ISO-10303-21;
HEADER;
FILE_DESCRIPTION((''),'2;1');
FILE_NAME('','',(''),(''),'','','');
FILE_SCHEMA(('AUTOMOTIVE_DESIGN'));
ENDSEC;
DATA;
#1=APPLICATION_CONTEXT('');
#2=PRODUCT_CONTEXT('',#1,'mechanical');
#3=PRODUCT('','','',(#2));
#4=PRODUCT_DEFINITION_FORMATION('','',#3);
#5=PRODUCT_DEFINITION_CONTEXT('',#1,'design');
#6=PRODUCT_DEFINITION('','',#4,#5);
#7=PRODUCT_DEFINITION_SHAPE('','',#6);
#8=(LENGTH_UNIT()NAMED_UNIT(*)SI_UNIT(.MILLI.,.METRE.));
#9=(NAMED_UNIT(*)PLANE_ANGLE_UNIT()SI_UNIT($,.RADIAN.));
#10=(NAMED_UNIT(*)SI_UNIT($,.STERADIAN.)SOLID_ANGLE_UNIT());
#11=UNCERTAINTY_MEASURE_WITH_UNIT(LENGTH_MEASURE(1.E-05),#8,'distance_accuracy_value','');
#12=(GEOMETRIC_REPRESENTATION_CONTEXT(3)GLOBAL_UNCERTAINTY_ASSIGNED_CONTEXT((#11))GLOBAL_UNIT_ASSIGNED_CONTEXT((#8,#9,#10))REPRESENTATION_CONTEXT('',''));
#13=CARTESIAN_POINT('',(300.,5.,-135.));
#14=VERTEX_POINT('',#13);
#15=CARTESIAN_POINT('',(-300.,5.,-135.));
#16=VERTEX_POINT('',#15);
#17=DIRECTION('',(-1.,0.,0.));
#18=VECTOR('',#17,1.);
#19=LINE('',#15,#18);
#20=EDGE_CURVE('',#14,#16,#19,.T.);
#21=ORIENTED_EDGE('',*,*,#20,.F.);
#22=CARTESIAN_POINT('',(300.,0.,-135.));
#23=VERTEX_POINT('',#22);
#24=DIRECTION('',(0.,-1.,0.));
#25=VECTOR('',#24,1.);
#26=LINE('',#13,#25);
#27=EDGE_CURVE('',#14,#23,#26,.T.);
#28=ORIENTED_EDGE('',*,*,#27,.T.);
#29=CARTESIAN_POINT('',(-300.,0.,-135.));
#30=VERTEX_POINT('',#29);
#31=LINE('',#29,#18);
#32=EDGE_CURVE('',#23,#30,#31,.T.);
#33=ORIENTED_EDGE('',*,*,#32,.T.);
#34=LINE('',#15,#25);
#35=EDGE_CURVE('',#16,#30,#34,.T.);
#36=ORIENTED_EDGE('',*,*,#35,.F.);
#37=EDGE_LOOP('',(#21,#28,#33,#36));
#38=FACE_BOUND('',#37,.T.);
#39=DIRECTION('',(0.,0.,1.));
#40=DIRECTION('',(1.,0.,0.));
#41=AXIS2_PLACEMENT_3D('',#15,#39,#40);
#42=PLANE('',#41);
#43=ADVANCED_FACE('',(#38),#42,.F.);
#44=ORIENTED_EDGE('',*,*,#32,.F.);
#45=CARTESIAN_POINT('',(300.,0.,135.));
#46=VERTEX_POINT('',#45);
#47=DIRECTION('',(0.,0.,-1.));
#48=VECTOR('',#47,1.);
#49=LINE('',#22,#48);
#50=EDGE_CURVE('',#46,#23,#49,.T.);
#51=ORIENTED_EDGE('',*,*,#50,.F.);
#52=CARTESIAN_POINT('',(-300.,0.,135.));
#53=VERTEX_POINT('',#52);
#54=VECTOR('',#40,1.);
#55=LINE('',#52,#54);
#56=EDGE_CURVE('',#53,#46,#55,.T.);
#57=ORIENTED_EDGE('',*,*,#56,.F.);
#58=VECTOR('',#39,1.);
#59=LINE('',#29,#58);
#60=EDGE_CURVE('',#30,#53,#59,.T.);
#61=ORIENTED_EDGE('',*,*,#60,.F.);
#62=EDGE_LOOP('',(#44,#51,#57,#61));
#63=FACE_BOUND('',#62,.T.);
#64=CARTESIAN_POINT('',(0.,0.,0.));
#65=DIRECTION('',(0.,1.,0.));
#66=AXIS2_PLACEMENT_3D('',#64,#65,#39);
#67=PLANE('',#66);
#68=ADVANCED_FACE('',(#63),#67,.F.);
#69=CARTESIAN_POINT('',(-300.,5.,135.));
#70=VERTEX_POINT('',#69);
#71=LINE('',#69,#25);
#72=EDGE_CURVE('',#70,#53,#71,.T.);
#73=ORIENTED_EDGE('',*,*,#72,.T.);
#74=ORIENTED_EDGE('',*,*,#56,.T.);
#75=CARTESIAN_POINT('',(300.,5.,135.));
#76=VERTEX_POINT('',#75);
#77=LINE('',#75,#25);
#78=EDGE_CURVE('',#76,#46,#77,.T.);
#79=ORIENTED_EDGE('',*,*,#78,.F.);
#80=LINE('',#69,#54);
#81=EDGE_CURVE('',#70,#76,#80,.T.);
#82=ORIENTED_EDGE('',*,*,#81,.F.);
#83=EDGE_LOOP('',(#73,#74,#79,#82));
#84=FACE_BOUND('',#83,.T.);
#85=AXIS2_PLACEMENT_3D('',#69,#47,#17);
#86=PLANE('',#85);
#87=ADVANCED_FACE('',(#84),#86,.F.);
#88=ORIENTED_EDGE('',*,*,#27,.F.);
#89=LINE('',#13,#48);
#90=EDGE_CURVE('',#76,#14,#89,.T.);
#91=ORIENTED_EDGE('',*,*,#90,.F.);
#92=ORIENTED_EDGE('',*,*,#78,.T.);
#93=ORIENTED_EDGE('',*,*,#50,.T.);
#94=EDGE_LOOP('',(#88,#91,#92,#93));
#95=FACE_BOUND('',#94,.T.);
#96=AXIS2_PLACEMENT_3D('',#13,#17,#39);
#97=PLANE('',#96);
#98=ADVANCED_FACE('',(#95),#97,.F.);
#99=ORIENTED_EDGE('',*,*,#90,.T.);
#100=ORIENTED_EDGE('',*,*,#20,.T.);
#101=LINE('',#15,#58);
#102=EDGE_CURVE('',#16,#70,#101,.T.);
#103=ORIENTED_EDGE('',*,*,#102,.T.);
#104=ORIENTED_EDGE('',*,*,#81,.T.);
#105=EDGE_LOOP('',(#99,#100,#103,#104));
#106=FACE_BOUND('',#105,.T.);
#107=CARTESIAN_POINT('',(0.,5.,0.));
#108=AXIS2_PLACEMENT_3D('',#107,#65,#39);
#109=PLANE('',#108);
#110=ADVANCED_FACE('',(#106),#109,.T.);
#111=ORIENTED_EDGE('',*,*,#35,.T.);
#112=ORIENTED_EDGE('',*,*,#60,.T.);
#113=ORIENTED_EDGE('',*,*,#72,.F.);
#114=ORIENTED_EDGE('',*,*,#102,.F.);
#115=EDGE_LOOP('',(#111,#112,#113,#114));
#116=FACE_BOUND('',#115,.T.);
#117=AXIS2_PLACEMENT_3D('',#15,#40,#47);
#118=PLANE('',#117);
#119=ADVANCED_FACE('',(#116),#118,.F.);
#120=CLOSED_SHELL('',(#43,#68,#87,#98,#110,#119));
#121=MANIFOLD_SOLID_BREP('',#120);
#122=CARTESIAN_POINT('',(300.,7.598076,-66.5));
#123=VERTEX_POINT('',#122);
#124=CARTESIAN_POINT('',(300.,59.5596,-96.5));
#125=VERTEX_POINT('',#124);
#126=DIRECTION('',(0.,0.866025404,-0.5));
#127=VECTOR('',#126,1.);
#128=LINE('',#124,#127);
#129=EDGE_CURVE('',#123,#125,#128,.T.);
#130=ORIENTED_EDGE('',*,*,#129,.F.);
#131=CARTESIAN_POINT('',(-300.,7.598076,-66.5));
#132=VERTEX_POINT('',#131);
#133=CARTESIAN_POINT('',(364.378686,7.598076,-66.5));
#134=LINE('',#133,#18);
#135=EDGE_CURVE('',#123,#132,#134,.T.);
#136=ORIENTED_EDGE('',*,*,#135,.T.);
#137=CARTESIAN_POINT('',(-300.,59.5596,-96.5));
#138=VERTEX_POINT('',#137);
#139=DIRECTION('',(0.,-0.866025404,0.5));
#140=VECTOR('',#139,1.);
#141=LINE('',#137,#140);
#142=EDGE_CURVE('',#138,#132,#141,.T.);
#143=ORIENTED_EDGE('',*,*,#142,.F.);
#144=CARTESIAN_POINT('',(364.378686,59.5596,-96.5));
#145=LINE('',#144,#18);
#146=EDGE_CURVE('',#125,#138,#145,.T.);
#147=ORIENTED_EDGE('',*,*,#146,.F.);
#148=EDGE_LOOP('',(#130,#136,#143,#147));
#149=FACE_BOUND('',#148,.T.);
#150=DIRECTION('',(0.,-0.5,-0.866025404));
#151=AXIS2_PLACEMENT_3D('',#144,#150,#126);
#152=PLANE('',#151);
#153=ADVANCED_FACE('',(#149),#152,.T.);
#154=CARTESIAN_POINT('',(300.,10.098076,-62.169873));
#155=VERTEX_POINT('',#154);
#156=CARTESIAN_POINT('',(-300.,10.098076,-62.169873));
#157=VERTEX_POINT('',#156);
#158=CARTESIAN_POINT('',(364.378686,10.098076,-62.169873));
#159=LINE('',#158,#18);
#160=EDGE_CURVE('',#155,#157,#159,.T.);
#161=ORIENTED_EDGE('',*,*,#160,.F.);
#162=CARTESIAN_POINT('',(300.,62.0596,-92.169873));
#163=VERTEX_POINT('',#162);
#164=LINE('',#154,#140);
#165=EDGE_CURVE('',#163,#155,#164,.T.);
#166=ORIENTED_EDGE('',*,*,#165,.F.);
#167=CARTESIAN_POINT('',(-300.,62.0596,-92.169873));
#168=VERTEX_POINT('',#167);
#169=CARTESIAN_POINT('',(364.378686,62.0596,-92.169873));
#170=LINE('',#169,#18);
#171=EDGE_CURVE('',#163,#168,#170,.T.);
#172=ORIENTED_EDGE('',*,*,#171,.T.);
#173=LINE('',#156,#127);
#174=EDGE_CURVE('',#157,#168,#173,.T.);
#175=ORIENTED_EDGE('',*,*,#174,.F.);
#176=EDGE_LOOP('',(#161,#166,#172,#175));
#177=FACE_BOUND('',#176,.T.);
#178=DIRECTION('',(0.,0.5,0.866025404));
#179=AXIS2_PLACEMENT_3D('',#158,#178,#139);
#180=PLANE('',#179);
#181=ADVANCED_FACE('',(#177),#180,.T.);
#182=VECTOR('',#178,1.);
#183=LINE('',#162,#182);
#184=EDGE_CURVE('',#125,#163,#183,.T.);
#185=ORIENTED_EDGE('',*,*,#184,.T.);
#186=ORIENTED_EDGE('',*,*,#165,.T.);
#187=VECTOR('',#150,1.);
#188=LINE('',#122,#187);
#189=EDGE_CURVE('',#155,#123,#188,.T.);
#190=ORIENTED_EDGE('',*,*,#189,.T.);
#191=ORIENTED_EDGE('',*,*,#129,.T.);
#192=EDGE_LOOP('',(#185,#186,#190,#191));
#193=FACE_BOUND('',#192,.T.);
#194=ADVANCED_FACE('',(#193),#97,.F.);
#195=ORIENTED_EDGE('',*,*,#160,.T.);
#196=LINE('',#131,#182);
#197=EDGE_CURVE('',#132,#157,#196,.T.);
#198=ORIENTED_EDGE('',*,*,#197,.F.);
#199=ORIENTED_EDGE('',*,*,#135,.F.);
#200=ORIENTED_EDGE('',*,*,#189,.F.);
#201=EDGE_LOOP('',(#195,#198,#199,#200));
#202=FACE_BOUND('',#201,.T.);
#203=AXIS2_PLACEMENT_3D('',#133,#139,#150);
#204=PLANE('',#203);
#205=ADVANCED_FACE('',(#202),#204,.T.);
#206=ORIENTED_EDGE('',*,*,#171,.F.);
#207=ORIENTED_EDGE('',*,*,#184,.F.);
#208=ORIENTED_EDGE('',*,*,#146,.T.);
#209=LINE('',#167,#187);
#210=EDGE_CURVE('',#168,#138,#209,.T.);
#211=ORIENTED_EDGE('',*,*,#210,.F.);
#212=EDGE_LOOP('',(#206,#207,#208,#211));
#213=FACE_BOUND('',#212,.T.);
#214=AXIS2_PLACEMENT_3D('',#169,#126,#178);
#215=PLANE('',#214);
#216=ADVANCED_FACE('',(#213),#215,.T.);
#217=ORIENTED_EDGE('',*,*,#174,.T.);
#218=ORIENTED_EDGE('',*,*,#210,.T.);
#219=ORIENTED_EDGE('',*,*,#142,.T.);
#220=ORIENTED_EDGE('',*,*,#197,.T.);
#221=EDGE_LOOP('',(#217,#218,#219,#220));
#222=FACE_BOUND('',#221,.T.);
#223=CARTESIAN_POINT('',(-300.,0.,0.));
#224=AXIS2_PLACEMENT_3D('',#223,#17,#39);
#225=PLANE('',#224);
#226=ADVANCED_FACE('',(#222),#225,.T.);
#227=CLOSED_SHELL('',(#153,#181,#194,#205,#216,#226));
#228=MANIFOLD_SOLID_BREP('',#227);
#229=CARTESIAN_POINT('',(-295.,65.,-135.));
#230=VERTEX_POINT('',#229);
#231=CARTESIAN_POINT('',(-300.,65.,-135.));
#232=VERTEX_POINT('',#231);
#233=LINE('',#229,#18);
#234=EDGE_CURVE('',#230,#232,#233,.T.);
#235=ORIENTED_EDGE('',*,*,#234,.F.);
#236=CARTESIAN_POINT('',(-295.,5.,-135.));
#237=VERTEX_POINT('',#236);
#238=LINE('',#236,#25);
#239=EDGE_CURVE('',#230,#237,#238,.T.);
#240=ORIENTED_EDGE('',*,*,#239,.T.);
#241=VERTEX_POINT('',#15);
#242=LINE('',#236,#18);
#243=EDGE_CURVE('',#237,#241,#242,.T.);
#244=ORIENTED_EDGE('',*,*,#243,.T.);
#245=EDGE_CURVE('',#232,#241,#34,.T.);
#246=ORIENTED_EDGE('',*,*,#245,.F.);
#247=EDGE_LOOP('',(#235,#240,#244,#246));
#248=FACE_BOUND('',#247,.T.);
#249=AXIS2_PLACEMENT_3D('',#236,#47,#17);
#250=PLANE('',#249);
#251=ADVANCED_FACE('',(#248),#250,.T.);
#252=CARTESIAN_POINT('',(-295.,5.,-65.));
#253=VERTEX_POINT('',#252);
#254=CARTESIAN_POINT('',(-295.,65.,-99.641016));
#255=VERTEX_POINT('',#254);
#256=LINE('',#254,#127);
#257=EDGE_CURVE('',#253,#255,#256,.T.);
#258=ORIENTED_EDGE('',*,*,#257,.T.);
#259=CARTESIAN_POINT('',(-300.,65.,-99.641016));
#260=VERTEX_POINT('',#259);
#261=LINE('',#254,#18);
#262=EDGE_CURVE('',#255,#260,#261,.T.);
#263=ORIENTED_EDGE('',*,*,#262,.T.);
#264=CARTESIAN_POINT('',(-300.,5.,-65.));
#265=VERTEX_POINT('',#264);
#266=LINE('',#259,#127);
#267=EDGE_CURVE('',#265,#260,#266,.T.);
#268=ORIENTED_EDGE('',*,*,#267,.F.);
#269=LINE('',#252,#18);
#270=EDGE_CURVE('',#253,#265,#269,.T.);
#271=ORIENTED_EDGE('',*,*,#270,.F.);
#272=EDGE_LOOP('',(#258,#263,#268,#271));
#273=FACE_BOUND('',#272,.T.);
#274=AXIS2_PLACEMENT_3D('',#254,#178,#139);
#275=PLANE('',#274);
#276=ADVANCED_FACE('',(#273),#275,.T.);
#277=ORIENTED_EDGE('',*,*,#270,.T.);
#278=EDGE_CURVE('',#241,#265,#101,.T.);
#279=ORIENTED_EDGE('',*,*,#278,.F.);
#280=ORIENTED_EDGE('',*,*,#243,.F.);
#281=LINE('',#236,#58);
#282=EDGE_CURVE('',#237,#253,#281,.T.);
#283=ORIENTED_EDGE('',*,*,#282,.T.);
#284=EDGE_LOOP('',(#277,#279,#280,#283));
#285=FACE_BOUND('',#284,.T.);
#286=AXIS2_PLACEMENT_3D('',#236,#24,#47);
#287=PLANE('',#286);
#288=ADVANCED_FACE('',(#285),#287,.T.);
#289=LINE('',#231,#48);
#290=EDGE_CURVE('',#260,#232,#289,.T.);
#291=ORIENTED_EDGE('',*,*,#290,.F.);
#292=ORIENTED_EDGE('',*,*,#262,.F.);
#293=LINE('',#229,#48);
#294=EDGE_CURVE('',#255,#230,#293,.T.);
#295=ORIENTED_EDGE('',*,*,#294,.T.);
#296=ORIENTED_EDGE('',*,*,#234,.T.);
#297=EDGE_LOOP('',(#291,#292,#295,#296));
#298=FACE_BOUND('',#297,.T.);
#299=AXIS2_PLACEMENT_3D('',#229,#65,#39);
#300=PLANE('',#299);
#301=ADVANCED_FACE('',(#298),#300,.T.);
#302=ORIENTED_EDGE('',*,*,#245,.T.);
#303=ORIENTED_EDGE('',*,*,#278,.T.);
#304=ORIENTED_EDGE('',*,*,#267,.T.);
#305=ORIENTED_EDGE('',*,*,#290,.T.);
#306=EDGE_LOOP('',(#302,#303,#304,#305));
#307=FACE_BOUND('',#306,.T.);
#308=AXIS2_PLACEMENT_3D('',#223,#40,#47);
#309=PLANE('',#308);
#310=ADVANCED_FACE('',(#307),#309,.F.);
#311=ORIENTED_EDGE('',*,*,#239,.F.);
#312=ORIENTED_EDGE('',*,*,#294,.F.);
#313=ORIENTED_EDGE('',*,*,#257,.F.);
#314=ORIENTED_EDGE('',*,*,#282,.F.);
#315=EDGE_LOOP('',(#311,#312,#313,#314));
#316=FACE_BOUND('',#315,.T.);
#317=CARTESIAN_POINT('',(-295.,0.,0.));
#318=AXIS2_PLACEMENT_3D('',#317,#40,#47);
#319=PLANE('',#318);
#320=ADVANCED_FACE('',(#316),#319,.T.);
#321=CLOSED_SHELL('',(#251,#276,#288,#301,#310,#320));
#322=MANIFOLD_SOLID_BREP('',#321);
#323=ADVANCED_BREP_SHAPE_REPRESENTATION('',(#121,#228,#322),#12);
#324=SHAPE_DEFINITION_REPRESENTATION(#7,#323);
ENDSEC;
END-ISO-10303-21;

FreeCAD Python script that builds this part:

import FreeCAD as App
import Part
import Sketcher

V = App.Vector
Q = App.Units.Quantity

doc = App.newDocument("Part")
body = doc.addObject("PartDesign::Body", "Body")

# Sketch on XZ plane
sketch1 = body.newObject("Sketcher::SketchObject", "Sketch")
sketch1.AttachmentSupport = (doc.getObject("XZ_Plane"), [""])
sketch1.MapMode = "FlatFace"
sketch1.addGeometry(Part.LineSegment(V(-300, -135, 0), V(-300, 135, 0)), False)
sketch1.addGeometry(Part.LineSegment(V(-300, 135, 0), V(300, 135, 0)), False)
sketch1.addGeometry(Part.LineSegment(V(300, 135, 0), V(300, -135, 0)), False)
sketch1.addGeometry(Part.LineSegment(V(300, -135, 0), V(-300, -135, 0)), False)
sketch1.addConstraint(Sketcher.Constraint("Coincident", 0, 2, 1, 1))
sketch1.addConstraint(Sketcher.Constraint("Coincident", 1, 2, 2, 1))
sketch1.addConstraint(Sketcher.Constraint("Coincident", 2, 2, 3, 1))
sketch1.addConstraint(Sketcher.Constraint("Coincident", 3, 2, 0, 1))
sketch1.addConstraint(Sketcher.Constraint("Vertical", 0))
sketch1.addConstraint(Sketcher.Constraint("Horizontal", 1))
sketch1.addConstraint(Sketcher.Constraint("Vertical", 2))
sketch1.addConstraint(Sketcher.Constraint("Horizontal", 3))
sketch1.addConstraint(Sketcher.Constraint("Symmetric", 0, 2, 2, 2, -1, 1))
sketch1.addConstraint(Sketcher.Constraint("DistanceX", 1, 1, 1, 2, Q("600 mm")))
sketch1.addConstraint(Sketcher.Constraint("DistanceY", 0, 1, 0, 2, Q("270 mm")))
pad1 = body.newObject("PartDesign::Pad", "Pad")
pad1.Profile = sketch1
pad1.Length = 5
pad1.Reversed = True
body2 = doc.addObject("PartDesign::Body", "Body001")

# Sketch on YZ plane
sketch2 = body2.newObject("Sketcher::SketchObject", "Sketch001")
sketch2.AttachmentSupport = (doc.getObject("YZ_Plane001"), [""])
sketch2.MapMode = "FlatFace"
sketch2.AttachmentOffset = App.Placement(V(0, 0, -300), App.Rotation())
sketch2.addGeometry(Part.LineSegment(V(5, -65, 0), V(65, -100, 0)), False)
sketch2.addGeometry(Part.LineSegment(V(65, -100, 0), V(65, -135, 0)), False)
sketch2.addGeometry(Part.LineSegment(V(65, -135, 0), V(5, -135, 0)), False)
sketch2.addGeometry(Part.LineSegment(V(5, -135, 0), V(5, -65, 0)), False)
sketch2.addConstraint(Sketcher.Constraint("Coincident", 0, 2, 1, 1))
sketch2.addConstraint(Sketcher.Constraint("Coincident", 1, 2, 2, 1))
sketch2.addConstraint(Sketcher.Constraint("Coincident", 2, 2, 3, 1))
sketch2.addConstraint(Sketcher.Constraint("Coincident", 3, 2, 0, 1))
sketch2.addConstraint(Sketcher.Constraint("Vertical", 1))
sketch2.addConstraint(Sketcher.Constraint("Horizontal", 2))
sketch2.addConstraint(Sketcher.Constraint("Vertical", 3))
sketch2.addConstraint(Sketcher.Constraint("DistanceX", 2, 2, 2, 1, Q("60 mm")))
sketch2.addConstraint(Sketcher.Constraint("DistanceY", 3, 1, 3, 2, Q("70 mm")))
sketch2.addConstraint(Sketcher.Constraint("Angle", 0, Q("-30 deg")))
sketch2.addConstraint(Sketcher.Constraint("DistanceX", -1, 1, 0, 2, Q("65 mm")))
sketch2.addConstraint(Sketcher.Constraint("DistanceY", 1, 2, -1, 1, Q("135 mm")))
pad2 = body2.newObject("PartDesign::Pad", "Pad001")
pad2.Profile = sketch2
pad2.Length = 5
body3 = doc.addObject("PartDesign::Body", "Body002")

# Sketch on YZ plane
sketch3 = body3.newObject("Sketcher::SketchObject", "Sketch002")
sketch3.AttachmentSupport = (doc.getObject("YZ_Plane002"), [""])
sketch3.MapMode = "FlatFace"
sketch3.AttachmentOffset = App.Placement(V(0, 0, -300), App.Rotation())
sketch3.addGeometry(Part.LineSegment(V(60, -96, 0), V(8, -66, 0)), False)
sketch3.addGeometry(Part.LineSegment(V(8, -66, 0), V(10, -62, 0)), False)
sketch3.addGeometry(Part.LineSegment(V(10, -62, 0), V(62, -92, 0)), False)
sketch3.addGeometry(Part.LineSegment(V(62, -92, 0), V(60, -96, 0)), False)
sketch3.addConstraint(Sketcher.Constraint("Coincident", 0, 2, 1, 1))
sketch3.addConstraint(Sketcher.Constraint("Coincident", 1, 2, 2, 1))
sketch3.addConstraint(Sketcher.Constraint("Coincident", 2, 2, 3, 1))
sketch3.addConstraint(Sketcher.Constraint("Coincident", 3, 2, 0, 1))
sketch3.addConstraint(Sketcher.Constraint("Perpendicular", 0, 1))
sketch3.addConstraint(Sketcher.Constraint("Perpendicular", 1, 2))
sketch3.addConstraint(Sketcher.Constraint("Perpendicular", 2, 3))
sketch3.addConstraint(Sketcher.Constraint("Angle", 0, Q("150 deg")))
sketch3.addConstraint(Sketcher.Constraint("Distance", 0, Q("60 mm")))
sketch3.addConstraint(Sketcher.Constraint("Distance", 1, Q("5 mm")))
sketch3.addConstraint(Sketcher.Constraint("DistanceY", 0, 2, -1, 1, Q("66.5 mm")))
sketch3.addConstraint(Sketcher.Constraint("DistanceX", -1, 1, 2, 2, Q("62.0596 mm")))
pad3 = body3.newObject("PartDesign::Pad", "Pad002")
pad3.Profile = sketch3
pad3.Length = 600

doc.recompute()
